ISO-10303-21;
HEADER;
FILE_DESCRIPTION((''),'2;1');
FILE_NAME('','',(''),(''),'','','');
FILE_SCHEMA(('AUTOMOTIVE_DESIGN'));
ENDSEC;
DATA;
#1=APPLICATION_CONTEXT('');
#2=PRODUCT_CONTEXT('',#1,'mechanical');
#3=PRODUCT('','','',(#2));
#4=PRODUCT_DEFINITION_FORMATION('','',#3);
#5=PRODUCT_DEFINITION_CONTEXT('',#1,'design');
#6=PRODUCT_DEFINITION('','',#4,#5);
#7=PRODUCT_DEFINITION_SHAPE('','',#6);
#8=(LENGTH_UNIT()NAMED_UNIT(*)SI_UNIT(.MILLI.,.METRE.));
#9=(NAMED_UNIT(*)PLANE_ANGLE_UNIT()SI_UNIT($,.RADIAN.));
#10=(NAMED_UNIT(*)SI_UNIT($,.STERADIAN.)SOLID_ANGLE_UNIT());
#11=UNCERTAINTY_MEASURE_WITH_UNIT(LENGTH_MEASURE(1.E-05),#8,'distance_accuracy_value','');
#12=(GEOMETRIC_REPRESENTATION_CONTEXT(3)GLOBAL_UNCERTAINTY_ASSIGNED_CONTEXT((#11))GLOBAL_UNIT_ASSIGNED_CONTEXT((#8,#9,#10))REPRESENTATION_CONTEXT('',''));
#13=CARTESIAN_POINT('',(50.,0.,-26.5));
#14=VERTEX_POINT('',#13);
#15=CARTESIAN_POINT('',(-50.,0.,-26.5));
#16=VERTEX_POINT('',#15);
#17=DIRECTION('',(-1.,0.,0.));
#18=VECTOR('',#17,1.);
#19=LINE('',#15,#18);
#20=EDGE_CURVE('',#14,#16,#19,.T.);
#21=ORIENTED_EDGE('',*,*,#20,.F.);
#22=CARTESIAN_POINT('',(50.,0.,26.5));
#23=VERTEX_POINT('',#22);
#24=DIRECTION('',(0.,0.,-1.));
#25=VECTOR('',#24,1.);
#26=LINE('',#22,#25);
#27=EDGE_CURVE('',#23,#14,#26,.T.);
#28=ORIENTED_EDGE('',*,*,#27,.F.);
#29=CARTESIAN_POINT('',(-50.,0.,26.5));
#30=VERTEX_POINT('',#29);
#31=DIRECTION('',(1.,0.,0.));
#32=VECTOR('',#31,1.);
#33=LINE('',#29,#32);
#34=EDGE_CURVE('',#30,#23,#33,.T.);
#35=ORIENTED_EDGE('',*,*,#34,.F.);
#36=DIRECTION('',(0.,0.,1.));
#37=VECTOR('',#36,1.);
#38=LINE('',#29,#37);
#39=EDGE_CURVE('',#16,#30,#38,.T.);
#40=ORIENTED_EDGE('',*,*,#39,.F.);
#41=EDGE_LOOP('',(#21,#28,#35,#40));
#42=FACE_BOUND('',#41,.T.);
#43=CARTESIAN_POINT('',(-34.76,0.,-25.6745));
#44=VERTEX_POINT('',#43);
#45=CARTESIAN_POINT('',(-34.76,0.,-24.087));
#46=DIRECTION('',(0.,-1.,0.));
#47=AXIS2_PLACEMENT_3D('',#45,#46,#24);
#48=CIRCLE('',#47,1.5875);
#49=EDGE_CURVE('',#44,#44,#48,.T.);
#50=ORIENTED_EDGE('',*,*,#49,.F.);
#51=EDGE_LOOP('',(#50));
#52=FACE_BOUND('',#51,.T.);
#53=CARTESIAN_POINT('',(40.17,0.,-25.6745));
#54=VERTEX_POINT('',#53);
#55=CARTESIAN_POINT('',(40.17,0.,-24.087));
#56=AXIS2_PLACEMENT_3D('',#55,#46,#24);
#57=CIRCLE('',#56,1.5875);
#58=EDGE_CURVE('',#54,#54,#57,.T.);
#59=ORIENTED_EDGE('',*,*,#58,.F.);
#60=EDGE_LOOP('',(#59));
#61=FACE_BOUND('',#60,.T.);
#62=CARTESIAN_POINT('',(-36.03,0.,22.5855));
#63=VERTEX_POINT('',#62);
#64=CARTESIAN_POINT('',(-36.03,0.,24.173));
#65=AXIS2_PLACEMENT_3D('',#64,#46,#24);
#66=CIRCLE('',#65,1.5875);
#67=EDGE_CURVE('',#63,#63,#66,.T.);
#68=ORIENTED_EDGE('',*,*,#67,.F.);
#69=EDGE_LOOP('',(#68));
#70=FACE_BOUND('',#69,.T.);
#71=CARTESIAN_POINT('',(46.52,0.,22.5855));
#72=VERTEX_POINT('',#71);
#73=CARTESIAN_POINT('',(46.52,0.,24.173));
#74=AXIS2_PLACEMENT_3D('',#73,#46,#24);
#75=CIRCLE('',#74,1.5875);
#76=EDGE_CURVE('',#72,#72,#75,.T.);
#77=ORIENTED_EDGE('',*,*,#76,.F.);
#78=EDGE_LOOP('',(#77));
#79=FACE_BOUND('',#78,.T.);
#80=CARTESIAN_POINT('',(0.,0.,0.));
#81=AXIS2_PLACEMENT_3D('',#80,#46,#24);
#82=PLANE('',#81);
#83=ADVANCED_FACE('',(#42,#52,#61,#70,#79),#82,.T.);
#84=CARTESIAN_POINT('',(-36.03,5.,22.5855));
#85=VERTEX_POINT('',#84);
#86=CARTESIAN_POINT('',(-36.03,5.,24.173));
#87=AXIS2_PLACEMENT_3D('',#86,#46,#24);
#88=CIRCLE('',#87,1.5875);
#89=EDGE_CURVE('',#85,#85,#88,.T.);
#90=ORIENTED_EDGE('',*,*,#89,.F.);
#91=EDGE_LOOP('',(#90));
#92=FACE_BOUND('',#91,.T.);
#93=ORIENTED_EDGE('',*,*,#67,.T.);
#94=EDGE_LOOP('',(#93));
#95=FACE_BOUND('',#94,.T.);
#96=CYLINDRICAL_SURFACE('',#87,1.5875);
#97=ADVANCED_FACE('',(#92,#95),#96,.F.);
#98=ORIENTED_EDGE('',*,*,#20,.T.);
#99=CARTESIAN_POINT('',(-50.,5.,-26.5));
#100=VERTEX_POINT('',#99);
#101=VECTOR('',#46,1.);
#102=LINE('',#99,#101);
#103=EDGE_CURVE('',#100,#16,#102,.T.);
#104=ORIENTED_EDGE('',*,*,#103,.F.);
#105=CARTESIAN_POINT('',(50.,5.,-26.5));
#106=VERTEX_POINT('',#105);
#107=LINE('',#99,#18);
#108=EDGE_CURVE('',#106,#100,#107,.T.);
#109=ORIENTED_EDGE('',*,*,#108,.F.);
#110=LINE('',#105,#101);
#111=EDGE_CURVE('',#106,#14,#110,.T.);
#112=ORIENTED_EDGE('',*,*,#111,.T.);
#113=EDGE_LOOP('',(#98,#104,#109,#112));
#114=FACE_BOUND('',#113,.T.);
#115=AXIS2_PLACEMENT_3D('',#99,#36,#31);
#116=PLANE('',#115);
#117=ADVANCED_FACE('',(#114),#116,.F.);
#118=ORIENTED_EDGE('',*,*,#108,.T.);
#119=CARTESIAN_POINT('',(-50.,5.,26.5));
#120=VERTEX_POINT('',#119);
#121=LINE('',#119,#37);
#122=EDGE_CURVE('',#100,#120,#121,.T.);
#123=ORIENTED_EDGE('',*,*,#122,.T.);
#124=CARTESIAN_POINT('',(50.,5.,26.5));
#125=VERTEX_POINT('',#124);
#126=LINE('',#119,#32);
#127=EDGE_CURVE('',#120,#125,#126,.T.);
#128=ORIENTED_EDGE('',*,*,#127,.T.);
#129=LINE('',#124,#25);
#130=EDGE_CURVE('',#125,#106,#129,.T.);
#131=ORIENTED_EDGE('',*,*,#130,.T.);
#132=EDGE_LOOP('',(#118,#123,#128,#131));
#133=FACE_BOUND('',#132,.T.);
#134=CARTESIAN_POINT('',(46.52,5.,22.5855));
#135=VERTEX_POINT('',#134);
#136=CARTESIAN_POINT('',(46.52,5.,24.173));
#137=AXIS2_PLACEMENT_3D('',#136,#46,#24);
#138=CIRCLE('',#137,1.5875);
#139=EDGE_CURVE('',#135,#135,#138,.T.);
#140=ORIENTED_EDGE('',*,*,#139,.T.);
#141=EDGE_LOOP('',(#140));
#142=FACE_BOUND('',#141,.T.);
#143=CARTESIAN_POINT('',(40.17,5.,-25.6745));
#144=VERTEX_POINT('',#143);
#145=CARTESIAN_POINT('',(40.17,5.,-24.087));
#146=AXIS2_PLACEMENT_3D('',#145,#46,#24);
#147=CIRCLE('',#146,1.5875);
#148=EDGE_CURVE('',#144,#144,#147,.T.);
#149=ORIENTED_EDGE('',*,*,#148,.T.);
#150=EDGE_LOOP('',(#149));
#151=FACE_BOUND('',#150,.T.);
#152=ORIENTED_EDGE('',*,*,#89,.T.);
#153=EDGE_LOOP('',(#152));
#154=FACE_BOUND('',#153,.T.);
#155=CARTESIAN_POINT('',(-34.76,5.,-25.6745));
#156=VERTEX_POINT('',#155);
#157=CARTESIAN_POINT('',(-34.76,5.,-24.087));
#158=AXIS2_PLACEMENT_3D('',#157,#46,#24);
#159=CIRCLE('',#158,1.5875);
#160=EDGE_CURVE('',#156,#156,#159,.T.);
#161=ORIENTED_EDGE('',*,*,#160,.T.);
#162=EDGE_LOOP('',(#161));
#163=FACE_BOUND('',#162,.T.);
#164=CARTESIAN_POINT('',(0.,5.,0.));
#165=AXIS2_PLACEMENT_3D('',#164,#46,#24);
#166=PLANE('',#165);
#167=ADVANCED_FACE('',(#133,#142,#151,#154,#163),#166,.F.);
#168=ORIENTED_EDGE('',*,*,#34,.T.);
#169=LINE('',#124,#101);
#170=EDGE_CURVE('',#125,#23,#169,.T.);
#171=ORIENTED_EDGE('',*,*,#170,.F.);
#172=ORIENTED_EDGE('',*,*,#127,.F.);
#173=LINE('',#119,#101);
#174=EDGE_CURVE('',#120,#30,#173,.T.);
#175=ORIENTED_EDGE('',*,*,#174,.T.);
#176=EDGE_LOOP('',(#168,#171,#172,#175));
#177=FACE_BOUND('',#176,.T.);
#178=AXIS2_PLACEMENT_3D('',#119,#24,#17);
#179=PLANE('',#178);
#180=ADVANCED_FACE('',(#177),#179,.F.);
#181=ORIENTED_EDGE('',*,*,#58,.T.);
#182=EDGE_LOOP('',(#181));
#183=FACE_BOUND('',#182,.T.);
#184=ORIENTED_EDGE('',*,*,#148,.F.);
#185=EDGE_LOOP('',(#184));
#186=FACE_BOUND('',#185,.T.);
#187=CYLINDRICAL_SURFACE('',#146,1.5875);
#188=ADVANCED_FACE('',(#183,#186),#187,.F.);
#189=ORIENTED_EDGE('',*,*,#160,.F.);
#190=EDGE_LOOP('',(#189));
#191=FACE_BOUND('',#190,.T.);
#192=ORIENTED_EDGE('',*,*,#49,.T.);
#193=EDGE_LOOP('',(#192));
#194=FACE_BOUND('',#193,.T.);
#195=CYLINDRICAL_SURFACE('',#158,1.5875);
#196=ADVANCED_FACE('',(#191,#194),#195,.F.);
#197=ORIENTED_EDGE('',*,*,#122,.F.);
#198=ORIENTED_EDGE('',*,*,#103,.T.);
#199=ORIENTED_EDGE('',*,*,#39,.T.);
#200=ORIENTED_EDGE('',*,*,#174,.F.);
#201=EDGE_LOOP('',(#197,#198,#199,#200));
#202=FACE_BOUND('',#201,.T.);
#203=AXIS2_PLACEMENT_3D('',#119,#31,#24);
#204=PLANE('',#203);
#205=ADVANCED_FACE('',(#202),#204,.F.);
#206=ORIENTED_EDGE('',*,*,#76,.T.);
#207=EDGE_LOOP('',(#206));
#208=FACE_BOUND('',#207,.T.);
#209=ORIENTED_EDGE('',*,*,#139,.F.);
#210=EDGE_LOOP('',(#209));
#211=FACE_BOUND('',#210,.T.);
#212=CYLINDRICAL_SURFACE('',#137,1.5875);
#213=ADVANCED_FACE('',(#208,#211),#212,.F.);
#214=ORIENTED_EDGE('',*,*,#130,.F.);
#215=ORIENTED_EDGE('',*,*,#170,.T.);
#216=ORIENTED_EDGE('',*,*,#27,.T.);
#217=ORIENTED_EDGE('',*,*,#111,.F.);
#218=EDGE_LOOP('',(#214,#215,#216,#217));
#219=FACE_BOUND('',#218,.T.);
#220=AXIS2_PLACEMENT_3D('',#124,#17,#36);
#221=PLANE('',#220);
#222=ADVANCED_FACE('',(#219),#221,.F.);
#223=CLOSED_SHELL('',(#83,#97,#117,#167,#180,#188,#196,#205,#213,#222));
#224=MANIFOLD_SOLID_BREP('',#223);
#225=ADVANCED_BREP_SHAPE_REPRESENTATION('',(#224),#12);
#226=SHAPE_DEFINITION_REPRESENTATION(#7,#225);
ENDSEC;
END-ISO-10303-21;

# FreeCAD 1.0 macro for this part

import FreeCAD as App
import Part
import Sketcher

V = App.Vector

doc = App.newDocument("Part")
body = doc.addObject("PartDesign::Body", "Body")

sketch1 = body.newObject("Sketcher::SketchObject", "Sketch")
sketch1.AttachmentSupport = (doc.getObject("XZ_Plane"), [""])
sketch1.MapMode = "FlatFace"
sketch1.addGeometry([
    Part.LineSegment(V(-50, -26, 0), V(-50, 26, 0)),
    Part.LineSegment(V(-50, 26, 0), V(50, 26, 0)),
    Part.LineSegment(V(50, 26, 0), V(50, -26, 0)),
    Part.LineSegment(V(50, -26, 0), V(-50, -26, 0)),
], False)
sketch1.addConstraint([
    Sketcher.Constraint("Coincident", 0, 2, 1, 1),
    Sketcher.Constraint("Coincident", 1, 2, 2, 1),
    Sketcher.Constraint("Coincident", 2, 2, 3, 1),
    Sketcher.Constraint("Coincident", 3, 2, 0, 1),
    Sketcher.Constraint("Vertical", 0),
    Sketcher.Constraint("Horizontal", 1),
    Sketcher.Constraint("Vertical", 2),
    Sketcher.Constraint("Horizontal", 3),
    Sketcher.Constraint("Symmetric", 0, 2, 2, 2, -1, 1),
    Sketcher.Constraint("DistanceX", 1, 1, 1, 2, 100.0),
    Sketcher.Constraint("DistanceY", 0, 1, 0, 2, 53.0),
])
pad1 = body.newObject("PartDesign::Pad", "Pad")
pad1.Profile = sketch1
pad1.Length = 5
pad1.Reversed = True

sketch2 = body.newObject("Sketcher::SketchObject", "Sketch001")
sketch2.AttachmentSupport = (doc.getObject("XZ_Plane"), [""])
sketch2.MapMode = "FlatFace"
sketch2.addGeometry([
    Part.Circle(V(46.5, 24.2, 0), V(0, 0, 1), 1.6),
    Part.Circle(V(40.2, -24.1, 0), V(0, 0, 1), 1.6),
    Part.Circle(V(-34.8, -24.1, 0), V(0, 0, 1), 1.6),
    Part.Circle(V(-36, 24.2, 0), V(0, 0, 1), 1.6),
], False)
sketch2.addConstraint([
    Sketcher.Constraint("Equal", 0, 1),
    Sketcher.Constraint("Equal", 1, 2),
    Sketcher.Constraint("Equal", 2, 3),
    Sketcher.Constraint("Horizontal", 1, 3, 2, 3),
    Sketcher.Constraint("Horizontal", 0, 3, 3, 3),
    Sketcher.Constraint("Diameter", 0, 3.175),
    Sketcher.Constraint("DistanceX", 3, 3, 1, 3, 76.2),
    Sketcher.Constraint("DistanceX", -1, 1, 0, 3, 46.52),
    Sketcher.Constraint("DistanceX", -1, 1, 1, 3, 40.17),
    Sketcher.Constraint("DistanceX", 2, 3, -1, 1, 34.76),
    Sketcher.Constraint("DistanceY", 1, 3, 0, 3, 48.26),
    Sketcher.Constraint("DistanceY", -1, 1, 0, 3, 24.173),
])
pocket1 = body.newObject("PartDesign::Pocket", "Pocket")
pocket1.Profile = sketch2
pocket1.Type = "ThroughAll"

doc.recompute()
